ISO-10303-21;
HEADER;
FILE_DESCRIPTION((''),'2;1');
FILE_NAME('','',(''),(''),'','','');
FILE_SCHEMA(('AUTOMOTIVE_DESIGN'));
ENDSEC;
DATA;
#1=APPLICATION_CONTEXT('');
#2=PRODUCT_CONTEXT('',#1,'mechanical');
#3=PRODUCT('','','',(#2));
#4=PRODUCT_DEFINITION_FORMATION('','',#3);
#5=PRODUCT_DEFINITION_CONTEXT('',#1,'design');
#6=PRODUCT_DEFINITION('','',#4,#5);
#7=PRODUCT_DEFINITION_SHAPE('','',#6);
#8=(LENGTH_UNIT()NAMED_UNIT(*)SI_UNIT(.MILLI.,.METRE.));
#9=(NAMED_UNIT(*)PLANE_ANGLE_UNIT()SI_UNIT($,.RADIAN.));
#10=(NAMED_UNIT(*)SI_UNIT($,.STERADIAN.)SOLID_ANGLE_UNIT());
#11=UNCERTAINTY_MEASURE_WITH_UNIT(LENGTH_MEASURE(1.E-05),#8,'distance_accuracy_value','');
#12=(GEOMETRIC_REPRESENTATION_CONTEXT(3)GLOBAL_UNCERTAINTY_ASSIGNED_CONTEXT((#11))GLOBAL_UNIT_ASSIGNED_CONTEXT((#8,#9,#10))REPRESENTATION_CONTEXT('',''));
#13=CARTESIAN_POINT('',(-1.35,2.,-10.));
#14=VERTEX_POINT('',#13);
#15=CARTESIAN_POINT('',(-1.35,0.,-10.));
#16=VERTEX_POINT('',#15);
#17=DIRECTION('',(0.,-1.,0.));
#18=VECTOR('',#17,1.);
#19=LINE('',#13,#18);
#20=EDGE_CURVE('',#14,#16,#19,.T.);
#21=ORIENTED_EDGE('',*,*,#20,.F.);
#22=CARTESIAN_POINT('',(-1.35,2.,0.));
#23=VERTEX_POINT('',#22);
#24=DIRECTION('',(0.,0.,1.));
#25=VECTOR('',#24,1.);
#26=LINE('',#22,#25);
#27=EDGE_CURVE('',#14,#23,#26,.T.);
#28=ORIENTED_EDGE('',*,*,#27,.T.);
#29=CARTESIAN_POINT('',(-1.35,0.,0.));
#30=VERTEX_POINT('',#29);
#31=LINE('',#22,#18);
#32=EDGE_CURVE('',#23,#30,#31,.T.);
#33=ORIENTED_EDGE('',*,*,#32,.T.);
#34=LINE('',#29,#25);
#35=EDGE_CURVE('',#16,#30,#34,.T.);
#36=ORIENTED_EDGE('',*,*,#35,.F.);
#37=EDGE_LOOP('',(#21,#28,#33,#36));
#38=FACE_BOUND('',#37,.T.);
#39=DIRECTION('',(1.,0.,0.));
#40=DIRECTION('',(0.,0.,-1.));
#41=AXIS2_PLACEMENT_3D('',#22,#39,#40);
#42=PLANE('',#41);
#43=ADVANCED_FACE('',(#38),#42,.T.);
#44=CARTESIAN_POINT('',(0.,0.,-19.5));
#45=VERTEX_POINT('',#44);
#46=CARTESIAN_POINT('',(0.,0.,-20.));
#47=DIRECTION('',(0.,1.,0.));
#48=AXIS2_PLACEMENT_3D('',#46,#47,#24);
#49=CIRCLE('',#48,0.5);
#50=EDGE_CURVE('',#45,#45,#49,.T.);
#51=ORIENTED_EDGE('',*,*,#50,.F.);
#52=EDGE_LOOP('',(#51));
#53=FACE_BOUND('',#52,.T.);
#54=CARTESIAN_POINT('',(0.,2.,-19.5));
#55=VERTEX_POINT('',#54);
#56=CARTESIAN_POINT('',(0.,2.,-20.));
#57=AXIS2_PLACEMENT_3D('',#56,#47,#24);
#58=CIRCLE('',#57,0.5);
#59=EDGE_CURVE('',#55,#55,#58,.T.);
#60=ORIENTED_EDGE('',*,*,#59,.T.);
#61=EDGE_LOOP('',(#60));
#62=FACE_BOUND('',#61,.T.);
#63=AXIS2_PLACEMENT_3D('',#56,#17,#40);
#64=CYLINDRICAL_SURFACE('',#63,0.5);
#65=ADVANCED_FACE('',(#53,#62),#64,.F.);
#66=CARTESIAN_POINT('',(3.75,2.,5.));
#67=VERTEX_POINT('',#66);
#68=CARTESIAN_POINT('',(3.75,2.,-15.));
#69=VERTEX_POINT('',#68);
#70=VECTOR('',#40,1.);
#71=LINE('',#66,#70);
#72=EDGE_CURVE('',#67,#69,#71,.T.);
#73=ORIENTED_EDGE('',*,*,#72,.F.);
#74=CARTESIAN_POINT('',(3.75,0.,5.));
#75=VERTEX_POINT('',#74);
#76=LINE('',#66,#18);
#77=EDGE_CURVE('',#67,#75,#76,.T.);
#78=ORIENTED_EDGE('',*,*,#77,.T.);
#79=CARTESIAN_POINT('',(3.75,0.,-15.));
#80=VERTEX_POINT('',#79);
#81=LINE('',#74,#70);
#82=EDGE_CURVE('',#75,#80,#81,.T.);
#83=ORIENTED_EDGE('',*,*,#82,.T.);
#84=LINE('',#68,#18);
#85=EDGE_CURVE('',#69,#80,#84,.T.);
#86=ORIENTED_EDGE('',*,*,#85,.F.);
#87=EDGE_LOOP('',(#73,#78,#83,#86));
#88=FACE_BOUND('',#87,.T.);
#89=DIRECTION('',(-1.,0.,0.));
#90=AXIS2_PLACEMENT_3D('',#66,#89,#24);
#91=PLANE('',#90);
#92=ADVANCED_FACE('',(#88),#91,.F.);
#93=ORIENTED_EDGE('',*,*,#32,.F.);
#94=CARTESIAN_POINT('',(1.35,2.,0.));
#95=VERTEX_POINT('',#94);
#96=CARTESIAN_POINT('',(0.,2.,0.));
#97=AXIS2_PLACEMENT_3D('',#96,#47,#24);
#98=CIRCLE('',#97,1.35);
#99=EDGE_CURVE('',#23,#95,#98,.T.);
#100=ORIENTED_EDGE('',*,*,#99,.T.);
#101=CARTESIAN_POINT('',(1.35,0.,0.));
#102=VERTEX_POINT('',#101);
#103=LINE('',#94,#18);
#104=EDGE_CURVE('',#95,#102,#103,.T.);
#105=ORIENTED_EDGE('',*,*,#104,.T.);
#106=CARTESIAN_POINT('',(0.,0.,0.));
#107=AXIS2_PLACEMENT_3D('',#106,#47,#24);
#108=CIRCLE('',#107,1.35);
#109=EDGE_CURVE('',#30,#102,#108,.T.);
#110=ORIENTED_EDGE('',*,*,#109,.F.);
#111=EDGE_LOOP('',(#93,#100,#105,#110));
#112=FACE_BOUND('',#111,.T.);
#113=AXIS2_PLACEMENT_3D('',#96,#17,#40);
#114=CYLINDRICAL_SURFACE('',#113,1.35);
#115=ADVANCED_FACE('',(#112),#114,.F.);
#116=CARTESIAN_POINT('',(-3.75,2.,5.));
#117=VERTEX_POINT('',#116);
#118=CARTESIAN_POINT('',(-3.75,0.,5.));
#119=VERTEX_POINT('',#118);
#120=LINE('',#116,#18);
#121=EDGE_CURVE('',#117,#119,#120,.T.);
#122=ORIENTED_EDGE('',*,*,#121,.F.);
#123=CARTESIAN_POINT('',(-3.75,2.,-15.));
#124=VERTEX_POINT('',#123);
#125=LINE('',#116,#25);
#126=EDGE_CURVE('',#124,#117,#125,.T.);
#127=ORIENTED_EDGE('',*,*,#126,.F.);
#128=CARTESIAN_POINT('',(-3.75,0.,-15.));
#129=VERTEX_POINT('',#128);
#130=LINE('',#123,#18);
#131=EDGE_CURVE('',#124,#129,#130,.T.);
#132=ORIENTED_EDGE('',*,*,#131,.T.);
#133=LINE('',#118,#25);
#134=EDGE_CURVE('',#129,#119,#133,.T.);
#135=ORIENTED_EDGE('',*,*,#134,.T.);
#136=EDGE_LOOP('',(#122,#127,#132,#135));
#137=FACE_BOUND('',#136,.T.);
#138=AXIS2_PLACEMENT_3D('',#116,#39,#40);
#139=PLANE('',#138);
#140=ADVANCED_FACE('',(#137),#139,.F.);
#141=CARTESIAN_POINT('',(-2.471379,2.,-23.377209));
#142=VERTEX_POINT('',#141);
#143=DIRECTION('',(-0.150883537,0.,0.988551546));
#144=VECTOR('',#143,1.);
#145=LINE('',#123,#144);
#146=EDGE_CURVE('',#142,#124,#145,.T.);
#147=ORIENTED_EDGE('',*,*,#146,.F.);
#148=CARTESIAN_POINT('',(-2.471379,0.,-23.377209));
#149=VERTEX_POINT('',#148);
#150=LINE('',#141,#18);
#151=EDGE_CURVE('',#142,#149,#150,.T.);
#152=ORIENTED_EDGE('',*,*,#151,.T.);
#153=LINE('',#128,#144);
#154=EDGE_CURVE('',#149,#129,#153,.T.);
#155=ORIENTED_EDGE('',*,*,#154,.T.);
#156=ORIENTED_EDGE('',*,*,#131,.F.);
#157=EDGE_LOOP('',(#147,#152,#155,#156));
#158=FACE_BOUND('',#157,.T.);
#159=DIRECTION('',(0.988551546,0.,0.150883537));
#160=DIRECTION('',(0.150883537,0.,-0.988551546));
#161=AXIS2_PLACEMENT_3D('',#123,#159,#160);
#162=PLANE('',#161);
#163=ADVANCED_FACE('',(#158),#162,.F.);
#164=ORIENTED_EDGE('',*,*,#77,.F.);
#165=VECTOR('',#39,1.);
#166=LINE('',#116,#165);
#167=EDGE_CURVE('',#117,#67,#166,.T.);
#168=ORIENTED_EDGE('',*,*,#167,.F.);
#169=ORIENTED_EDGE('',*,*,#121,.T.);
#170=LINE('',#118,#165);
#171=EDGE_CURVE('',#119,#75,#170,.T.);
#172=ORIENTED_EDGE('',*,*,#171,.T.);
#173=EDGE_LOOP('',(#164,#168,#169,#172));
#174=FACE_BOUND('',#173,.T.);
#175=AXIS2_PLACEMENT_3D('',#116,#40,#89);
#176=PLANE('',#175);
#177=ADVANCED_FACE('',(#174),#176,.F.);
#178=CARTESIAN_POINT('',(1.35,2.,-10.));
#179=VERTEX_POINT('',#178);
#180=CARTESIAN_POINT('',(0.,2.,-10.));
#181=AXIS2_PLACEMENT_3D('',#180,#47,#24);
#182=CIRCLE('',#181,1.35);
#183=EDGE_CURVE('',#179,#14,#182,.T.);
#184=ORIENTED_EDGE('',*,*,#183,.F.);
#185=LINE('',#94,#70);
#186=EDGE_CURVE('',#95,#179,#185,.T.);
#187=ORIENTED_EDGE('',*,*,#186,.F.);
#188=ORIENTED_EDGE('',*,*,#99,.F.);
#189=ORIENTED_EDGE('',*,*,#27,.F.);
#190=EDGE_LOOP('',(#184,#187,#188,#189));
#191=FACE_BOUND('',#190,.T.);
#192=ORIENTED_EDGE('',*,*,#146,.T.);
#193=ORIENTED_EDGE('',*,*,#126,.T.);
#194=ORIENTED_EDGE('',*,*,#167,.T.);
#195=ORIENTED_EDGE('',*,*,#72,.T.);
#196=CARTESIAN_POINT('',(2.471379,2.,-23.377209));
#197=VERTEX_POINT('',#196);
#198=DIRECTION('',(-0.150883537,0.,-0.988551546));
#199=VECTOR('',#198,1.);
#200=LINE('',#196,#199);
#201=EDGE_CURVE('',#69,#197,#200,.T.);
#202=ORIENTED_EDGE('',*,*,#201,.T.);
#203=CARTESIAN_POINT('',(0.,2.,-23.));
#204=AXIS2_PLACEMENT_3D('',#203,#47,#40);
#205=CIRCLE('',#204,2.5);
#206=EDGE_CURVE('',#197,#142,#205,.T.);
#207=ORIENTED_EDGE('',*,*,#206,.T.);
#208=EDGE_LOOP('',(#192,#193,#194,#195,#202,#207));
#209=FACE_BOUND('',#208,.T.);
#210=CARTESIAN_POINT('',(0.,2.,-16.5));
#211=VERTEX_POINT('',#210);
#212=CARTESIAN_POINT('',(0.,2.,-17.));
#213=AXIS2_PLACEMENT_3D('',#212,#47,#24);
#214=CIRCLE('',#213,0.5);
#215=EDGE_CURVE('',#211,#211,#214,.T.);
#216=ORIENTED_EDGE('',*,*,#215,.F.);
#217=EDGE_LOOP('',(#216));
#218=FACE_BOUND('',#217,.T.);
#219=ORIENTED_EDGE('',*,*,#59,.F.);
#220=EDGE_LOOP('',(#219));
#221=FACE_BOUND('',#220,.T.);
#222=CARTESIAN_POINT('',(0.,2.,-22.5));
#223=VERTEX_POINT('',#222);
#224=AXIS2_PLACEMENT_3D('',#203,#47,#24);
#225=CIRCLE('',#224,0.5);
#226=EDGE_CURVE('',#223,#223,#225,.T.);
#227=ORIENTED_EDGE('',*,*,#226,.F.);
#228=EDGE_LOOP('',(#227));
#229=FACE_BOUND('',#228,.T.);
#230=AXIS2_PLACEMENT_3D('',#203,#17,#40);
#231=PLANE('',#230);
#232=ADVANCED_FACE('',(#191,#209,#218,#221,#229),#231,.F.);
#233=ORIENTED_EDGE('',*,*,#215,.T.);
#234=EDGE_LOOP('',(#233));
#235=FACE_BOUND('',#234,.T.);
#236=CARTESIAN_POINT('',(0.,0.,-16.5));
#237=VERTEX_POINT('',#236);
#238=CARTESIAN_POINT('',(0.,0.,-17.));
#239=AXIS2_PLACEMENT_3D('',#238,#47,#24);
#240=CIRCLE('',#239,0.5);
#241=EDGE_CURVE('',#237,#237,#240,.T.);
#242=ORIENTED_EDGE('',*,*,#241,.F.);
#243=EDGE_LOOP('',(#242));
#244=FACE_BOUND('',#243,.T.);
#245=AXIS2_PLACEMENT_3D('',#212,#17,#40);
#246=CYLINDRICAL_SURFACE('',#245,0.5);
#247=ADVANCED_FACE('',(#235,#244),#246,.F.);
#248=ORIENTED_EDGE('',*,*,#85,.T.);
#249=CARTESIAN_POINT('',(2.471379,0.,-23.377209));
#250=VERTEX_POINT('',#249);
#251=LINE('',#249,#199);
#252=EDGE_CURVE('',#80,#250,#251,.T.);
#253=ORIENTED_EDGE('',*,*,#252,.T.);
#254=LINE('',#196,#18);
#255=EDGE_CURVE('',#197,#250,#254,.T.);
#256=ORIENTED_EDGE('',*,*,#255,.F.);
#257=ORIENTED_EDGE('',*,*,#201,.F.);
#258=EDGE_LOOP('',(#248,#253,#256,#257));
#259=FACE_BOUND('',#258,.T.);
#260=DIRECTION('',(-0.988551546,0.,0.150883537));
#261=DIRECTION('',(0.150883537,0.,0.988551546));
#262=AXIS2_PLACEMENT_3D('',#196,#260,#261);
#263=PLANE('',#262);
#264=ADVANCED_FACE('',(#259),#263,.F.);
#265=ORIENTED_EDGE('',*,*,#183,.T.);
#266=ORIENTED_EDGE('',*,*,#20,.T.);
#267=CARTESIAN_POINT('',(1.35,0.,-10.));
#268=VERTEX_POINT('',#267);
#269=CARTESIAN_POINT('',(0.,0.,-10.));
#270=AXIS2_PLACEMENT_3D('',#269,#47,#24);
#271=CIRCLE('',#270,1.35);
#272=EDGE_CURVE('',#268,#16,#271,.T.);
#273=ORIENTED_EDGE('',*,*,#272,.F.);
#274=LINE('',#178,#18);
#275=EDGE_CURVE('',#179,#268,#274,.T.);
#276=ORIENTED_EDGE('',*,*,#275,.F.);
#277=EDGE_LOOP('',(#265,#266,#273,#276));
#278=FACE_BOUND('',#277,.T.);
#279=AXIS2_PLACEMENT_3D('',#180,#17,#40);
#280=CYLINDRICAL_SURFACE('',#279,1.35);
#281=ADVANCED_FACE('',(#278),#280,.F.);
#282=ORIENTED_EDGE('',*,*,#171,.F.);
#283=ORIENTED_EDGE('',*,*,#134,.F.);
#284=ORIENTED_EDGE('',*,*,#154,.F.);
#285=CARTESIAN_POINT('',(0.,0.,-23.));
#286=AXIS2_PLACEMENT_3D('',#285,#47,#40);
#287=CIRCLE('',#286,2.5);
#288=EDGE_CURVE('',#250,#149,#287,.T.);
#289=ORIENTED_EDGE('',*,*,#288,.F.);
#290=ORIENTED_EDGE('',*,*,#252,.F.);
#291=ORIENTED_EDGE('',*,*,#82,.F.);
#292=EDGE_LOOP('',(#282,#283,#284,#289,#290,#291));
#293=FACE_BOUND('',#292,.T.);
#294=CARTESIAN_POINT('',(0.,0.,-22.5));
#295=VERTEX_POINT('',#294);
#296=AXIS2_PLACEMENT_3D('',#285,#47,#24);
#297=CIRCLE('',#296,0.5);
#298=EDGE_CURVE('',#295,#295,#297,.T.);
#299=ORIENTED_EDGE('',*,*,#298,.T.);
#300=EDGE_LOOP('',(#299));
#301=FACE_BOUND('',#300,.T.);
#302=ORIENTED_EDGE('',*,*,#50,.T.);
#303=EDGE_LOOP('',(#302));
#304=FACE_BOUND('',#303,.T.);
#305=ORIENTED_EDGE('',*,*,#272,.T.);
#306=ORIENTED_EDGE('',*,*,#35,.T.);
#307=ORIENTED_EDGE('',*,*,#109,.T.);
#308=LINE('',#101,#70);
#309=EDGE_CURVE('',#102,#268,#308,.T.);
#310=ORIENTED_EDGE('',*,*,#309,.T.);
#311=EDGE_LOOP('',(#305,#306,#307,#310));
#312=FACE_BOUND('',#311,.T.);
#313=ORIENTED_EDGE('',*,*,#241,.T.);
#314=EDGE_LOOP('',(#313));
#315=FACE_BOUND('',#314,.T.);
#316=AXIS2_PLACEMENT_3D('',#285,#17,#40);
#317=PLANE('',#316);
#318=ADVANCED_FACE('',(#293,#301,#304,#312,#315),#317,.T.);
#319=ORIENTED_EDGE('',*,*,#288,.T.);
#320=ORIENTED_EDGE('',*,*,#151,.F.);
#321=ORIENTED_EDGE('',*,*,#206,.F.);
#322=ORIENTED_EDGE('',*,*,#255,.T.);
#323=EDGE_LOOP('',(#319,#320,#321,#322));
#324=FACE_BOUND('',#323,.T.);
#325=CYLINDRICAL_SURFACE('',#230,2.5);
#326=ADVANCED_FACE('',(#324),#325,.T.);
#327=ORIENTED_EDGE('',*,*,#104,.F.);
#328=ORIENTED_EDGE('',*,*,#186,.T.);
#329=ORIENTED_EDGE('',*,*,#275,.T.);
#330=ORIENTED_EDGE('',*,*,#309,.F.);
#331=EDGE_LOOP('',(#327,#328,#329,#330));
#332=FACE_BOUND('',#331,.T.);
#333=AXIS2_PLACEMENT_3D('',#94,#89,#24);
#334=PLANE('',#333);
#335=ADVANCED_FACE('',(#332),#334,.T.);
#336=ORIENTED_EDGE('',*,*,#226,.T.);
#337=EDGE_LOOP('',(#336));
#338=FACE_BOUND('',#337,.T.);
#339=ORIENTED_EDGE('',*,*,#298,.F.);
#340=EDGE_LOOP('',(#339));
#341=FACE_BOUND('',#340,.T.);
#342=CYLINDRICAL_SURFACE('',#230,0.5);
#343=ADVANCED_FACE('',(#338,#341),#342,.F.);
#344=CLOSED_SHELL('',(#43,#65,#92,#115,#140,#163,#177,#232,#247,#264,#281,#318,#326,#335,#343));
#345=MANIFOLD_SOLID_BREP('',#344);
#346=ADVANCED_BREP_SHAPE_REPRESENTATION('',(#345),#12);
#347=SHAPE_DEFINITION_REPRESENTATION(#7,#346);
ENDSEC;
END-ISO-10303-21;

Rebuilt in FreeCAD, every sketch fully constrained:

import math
import FreeCAD as App
import Part
import Sketcher

V = App.Vector
Q = App.Units.Quantity

doc = App.newDocument("Part")
body = doc.addObject("PartDesign::Body", "Body")

# Sketch on XZ plane
sketch1 = body.newObject("Sketcher::SketchObject", "Sketch")
sketch1.AttachmentSupport = (doc.getObject("XZ_Plane"), [""])
sketch1.MapMode = "FlatFace"
sketch1.addGeometry([
    Part.LineSegment(V(-2.5, -23.4, 0), V(-3.8, -15, 0)),  # 0
    Part.LineSegment(V(-3.8, -15, 0), V(-3.8, 5, 0)),  # 1
    Part.LineSegment(V(-3.8, 5, 0), V(3.8, 5, 0)),  # 2
    Part.LineSegment(V(3.8, 5, 0), V(3.8, -15, 0)),  # 3
    Part.LineSegment(V(3.8, -15, 0), V(2.5, -23.4, 0)),  # 4
    Part.ArcOfCircle(Part.Circle(V(0, -23, 0), V(0, 0, 1), 2.5), math.radians(-171), math.radians(-9)),  # 5
    Part.LineSegment(V(-1.4, 0, 0), V(-1.4, -10, 0)),  # 6
    Part.ArcOfCircle(Part.Circle(V(0, -10, 0), V(0, 0, 1), 1.4), math.radians(180), math.radians(360)),  # 7
    Part.LineSegment(V(1.4, -10, 0), V(1.4, 0, 0)),  # 8
    Part.ArcOfCircle(Part.Circle(V(0, 0, 0), V(0, 0, 1), 1.4), math.radians(0), math.radians(180)),  # 9
    Part.Circle(V(0, -17, 0), V(0, 0, 1), 0.5),  # 10
    Part.Circle(V(0, -20, 0), V(0, 0, 1), 0.5),  # 11
    Part.Circle(V(0, -23, 0), V(0, 0, 1), 0.5),  # 12
], False)
sketch1.addConstraint([
    Sketcher.Constraint("Coincident", 0, 2, 1, 1),
    Sketcher.Constraint("Coincident", 1, 2, 2, 1),
    Sketcher.Constraint("Coincident", 2, 2, 3, 1),
    Sketcher.Constraint("Coincident", 3, 2, 4, 1),
    Sketcher.Constraint("Tangent", 4, 2, 5, 2),
    Sketcher.Constraint("Tangent", 5, 1, 0, 1),
    Sketcher.Constraint("Tangent", 6, 2, 7, 1),
    Sketcher.Constraint("Tangent", 7, 2, 8, 1),
    Sketcher.Constraint("Tangent", 8, 2, 9, 1),
    Sketcher.Constraint("Tangent", 9, 2, 6, 1),
    Sketcher.Constraint("Vertical", 1),
    Sketcher.Constraint("Horizontal", 2),
    Sketcher.Constraint("Vertical", 3),
    Sketcher.Constraint("Vertical", 6),
    Sketcher.Constraint("Vertical", 8),
    Sketcher.Constraint("Coincident", 9, 3, -1, 1),
    Sketcher.Constraint("Coincident", 12, 3, 5, 3),
    Sketcher.Constraint("Equal", 10, 11),
    Sketcher.Constraint("Equal", 11, 12),
    Sketcher.Constraint("Symmetric", 0, 2, 3, 2, -2),
    Sketcher.Constraint("PointOnObject", 5, 3, -2),
    Sketcher.Constraint("PointOnObject", 10, 3, -2),
    Sketcher.Constraint("PointOnObject", 11, 3, -2),
    Sketcher.Constraint("Diameter", 10, Q("1 mm")),
    Sketcher.Constraint("Radius", 5, Q("2.5 mm")),
    Sketcher.Constraint("DistanceY", 1, 1, 1, 2, Q("20 mm")),
    Sketcher.Constraint("DistanceY", 6, 2, 6, 1, Q("10 mm")),
    Sketcher.Constraint("Radius", 7, Q("1.35 mm")),
    Sketcher.Constraint("DistanceX", 2, 1, 2, 2, Q("7.5 mm")),
    Sketcher.Constraint("DistanceY", 5, 3, -1, 1, Q("23 mm")),
    Sketcher.Constraint("DistanceY", 10, 3, -1, 1, Q("17 mm")),
    Sketcher.Constraint("DistanceY", 11, 3, -1, 1, Q("20 mm")),
    Sketcher.Constraint("DistanceY", 0, 2, -1, 1, Q("15 mm")),
])
pad1 = body.newObject("PartDesign::Pad", "Pad")
pad1.Profile = sketch1
pad1.Length = 2
pad1.Reversed = True

doc.recompute()
